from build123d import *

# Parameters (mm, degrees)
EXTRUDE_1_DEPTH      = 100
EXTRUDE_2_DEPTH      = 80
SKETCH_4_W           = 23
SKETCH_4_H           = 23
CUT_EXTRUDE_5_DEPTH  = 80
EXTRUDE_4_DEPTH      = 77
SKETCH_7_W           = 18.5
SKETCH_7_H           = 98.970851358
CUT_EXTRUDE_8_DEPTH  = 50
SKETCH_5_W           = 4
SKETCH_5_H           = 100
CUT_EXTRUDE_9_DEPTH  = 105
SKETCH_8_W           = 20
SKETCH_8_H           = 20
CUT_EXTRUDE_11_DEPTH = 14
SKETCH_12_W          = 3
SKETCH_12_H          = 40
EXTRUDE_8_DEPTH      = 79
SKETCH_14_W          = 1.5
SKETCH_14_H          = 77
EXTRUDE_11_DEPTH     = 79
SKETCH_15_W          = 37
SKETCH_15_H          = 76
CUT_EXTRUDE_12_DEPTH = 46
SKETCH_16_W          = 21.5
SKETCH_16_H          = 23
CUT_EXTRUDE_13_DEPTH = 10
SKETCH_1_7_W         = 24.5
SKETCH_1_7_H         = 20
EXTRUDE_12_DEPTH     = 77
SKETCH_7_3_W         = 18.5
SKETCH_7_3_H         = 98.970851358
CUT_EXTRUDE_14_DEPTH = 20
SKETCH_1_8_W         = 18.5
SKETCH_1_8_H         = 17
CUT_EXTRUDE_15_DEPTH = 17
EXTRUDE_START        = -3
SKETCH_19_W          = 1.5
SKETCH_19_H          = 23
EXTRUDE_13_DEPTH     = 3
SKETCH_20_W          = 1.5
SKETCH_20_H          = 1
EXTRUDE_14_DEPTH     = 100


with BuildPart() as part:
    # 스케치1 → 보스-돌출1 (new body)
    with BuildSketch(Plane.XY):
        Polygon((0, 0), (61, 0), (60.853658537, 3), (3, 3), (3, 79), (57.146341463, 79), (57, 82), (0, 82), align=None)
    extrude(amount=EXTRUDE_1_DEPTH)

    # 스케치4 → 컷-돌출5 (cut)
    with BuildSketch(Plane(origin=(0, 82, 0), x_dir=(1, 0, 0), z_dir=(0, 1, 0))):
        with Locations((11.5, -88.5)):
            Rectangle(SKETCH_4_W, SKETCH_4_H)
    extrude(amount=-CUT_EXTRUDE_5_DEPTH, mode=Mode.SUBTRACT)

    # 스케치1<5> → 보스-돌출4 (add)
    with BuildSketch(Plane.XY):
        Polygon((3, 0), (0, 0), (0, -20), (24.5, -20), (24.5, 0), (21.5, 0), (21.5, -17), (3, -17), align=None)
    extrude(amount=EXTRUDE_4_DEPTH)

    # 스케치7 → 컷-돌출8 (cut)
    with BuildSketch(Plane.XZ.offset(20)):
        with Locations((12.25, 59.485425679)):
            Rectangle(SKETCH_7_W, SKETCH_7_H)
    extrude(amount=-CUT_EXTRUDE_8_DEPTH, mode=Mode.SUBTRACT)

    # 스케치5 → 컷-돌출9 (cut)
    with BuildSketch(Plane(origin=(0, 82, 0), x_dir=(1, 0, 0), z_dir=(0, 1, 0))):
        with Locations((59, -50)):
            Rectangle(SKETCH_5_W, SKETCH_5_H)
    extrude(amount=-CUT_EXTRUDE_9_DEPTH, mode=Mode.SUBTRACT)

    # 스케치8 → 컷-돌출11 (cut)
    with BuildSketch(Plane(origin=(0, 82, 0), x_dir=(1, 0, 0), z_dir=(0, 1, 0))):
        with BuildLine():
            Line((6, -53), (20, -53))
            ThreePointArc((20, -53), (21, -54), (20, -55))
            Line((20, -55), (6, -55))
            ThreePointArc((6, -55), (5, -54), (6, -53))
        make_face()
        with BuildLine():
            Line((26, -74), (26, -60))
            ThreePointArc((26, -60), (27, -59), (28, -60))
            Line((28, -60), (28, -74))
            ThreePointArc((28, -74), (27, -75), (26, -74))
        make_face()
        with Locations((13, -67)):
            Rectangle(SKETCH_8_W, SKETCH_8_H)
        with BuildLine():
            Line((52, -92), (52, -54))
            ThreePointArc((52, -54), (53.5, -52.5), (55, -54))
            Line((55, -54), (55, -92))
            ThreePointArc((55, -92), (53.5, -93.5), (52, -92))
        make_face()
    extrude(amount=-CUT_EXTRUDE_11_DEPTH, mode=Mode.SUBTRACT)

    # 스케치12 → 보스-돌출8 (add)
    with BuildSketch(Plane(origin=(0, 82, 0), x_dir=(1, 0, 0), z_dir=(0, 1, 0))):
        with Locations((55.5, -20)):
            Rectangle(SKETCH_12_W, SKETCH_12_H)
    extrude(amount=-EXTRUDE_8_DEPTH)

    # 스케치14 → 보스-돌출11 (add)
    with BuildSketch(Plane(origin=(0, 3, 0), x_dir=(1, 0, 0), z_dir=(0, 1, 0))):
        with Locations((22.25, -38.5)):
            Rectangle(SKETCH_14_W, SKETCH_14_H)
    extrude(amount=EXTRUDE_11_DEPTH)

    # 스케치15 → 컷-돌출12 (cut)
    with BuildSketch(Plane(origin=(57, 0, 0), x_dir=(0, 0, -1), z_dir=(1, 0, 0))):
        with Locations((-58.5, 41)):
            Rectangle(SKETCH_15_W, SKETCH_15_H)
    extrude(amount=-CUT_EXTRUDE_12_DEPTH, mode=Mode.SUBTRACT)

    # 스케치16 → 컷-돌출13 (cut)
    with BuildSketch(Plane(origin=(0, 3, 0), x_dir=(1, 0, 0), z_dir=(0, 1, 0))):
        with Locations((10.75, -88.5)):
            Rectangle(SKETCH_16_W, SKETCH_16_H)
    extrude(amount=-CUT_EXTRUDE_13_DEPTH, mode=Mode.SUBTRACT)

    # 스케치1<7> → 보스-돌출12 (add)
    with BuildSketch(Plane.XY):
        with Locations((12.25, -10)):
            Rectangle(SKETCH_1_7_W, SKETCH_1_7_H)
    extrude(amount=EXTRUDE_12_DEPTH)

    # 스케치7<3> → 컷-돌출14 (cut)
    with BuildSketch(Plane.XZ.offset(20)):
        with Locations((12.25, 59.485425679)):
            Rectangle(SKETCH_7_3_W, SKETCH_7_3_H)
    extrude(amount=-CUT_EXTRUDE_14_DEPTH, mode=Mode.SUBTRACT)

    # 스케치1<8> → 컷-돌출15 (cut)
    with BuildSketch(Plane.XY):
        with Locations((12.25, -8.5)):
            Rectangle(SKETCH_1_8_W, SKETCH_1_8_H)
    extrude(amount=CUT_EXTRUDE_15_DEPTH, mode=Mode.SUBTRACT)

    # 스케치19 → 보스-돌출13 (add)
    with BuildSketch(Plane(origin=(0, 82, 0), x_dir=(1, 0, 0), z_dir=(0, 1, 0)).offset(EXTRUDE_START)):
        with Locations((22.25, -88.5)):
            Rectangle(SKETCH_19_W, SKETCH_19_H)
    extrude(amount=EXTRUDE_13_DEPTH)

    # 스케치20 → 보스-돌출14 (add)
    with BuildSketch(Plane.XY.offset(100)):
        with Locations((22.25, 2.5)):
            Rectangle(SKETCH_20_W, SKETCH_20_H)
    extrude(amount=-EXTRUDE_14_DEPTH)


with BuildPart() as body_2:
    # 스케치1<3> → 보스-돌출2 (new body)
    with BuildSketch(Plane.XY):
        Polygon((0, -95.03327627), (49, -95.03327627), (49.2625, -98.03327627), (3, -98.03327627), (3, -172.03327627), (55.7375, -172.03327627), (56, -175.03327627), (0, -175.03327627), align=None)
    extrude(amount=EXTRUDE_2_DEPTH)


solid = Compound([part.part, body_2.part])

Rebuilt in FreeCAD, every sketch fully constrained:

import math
import FreeCAD as App
import Part
import Sketcher

V = App.Vector


def add_polygon(sketch, points):
    """Adds a closed chain of lines whose ends are joined by coincident constraints."""
    first, n = sketch.GeometryCount, len(points)
    for a, b in zip(points, points[1:] + points[:1]):
        sketch.addGeometry(Part.LineSegment(App.Vector(*a, 0), App.Vector(*b, 0)), False)
    for i in range(n):
        sketch.addConstraint(Sketcher.Constraint("Coincident", first + i, 2, first + (i + 1) % n, 1))

doc = App.newDocument("Part")
body = doc.addObject("PartDesign::Body", "Body")

# Sketch on XY plane
sketch1 = body.newObject("Sketcher::SketchObject", "Sketch")
sketch1.AttachmentSupport = (doc.getObject("XY_Plane"), [""])
sketch1.MapMode = "FlatFace"
add_polygon(sketch1, [(0, 0), (61, 0), (60.9, 3), (3, 3), (3, 79), (57.1, 79), (57, 82), (0, 82)])  # lines 0-7
sketch1.addConstraint(Sketcher.Constraint("Horizontal", 0))
sketch1.addConstraint(Sketcher.Constraint("Horizontal", 2))
sketch1.addConstraint(Sketcher.Constraint("Vertical", 3))
sketch1.addConstraint(Sketcher.Constraint("Horizontal", 4))
sketch1.addConstraint(Sketcher.Constraint("Horizontal", 6))
sketch1.addConstraint(Sketcher.Constraint("Vertical", 7))
sketch1.addConstraint(Sketcher.Constraint("Coincident", 7, 2, -1, 1))
sketch1.addConstraint(Sketcher.Constraint("Parallel", 1, 5))
sketch1.addConstraint(Sketcher.Constraint("Equal", 1, 5))
sketch1.addConstraint(Sketcher.Constraint("DistanceX", 0, 1, 0, 2, 61.0))
sketch1.addConstraint(Sketcher.Constraint("DistanceX", 6, 2, 6, 1, 57.0))
sketch1.addConstraint(Sketcher.Constraint("DistanceY", 3, 1, 3, 2, 76.0))
sketch1.addConstraint(Sketcher.Constraint("DistanceY", 7, 2, 7, 1, 82.0))
sketch1.addConstraint(Sketcher.Constraint("DistanceX", -1, 1, 2, 2, 3.0))
sketch1.addConstraint(Sketcher.Constraint("DistanceX", 2, 2, 2, 1, 57.853659))
pad1 = body.newObject("PartDesign::Pad", "Pad")
pad1.Profile = sketch1
pad1.Length = 100

# Sketch on XZ plane
sketch2 = body.newObject("Sketcher::SketchObject", "Sketch001")
sketch2.AttachmentSupport = (doc.getObject("XZ_Plane"), [""])
sketch2.MapMode = "FlatFace"
sketch2.AttachmentOffset = App.Placement(V(0, 0, -82), App.Rotation())
add_polygon(sketch2, [(0, 77), (0, 100), (23, 100), (23, 77)])  # lines 0-3
sketch2.addConstraint(Sketcher.Constraint("Vertical", 0))
sketch2.addConstraint(Sketcher.Constraint("Horizontal", 1))
sketch2.addConstraint(Sketcher.Constraint("Vertical", 2))
sketch2.addConstraint(Sketcher.Constraint("Horizontal", 3))
sketch2.addConstraint(Sketcher.Constraint("PointOnObject", 0, 2, -2))
sketch2.addConstraint(Sketcher.Constraint("Equal", 3, 0))
sketch2.addConstraint(Sketcher.Constraint("DistanceX", 1, 1, 1, 2, 23.0))
sketch2.addConstraint(Sketcher.Constraint("DistanceY", -1, 1, 0, 2, 100.0))
pocket1 = body.newObject("PartDesign::Pocket", "Pocket")
pocket1.Profile = sketch2
pocket1.Length = 80
pocket1.Reversed = True

# Sketch on XY plane
sketch3 = body.newObject("Sketcher::SketchObject", "Sketch002")
sketch3.AttachmentSupport = (doc.getObject("XY_Plane"), [""])
sketch3.MapMode = "FlatFace"
add_polygon(sketch3, [(3, 0), (0, 0), (0, -20), (24.5, -20), (24.5, 0), (21.5, 0), (21.5, -17), (3, -17)])  # lines 0-7
sketch3.addConstraint(Sketcher.Constraint("Horizontal", 0))
sketch3.addConstraint(Sketcher.Constraint("Vertical", 1))
sketch3.addConstraint(Sketcher.Constraint("Horizontal", 2))
sketch3.addConstraint(Sketcher.Constraint("Vertical", 3))
sketch3.addConstraint(Sketcher.Constraint("Horizontal", 4))
sketch3.addConstraint(Sketcher.Constraint("Vertical", 5))
sketch3.addConstraint(Sketcher.Constraint("Horizontal", 6))
sketch3.addConstraint(Sketcher.Constraint("Vertical", 7))
sketch3.addConstraint(Sketcher.Constraint("Coincident", 0, 2, -1, 1))
sketch3.addConstraint(Sketcher.Constraint("PointOnObject", 3, 2, -1))
sketch3.addConstraint(Sketcher.Constraint("Equal", 0, 4))
sketch3.addConstraint(Sketcher.Constraint("DistanceX", 0, 2, 0, 1, 3.0))
sketch3.addConstraint(Sketcher.Constraint("DistanceY", 1, 2, 1, 1, 20.0))
sketch3.addConstraint(Sketcher.Constraint("DistanceY", 5, 2, 5, 1, 17.0))
sketch3.addConstraint(Sketcher.Constraint("DistanceX", 2, 1, 2, 2, 24.5))
pad2 = body.newObject("PartDesign::Pad", "Pad001")
pad2.Profile = sketch3
pad2.Length = 77

# Sketch on XZ plane
sketch4 = body.newObject("Sketcher::SketchObject", "Sketch003")
sketch4.AttachmentSupport = (doc.getObject("XZ_Plane"), [""])
sketch4.MapMode = "FlatFace"
sketch4.AttachmentOffset = App.Placement(V(0, 0, 20), App.Rotation())
add_polygon(sketch4, [(3, 109), (3, 10), (22, 10), (22, 109)])  # lines 0-3
sketch4.addConstraint(Sketcher.Constraint("Vertical", 0))
sketch4.addConstraint(Sketcher.Constraint("Horizontal", 1))
sketch4.addConstraint(Sketcher.Constraint("Vertical", 2))
sketch4.addConstraint(Sketcher.Constraint("Horizontal", 3))
sketch4.addConstraint(Sketcher.Constraint("DistanceX", 1, 1, 1, 2, 18.5))
sketch4.addConstraint(Sketcher.Constraint("DistanceX", -1, 1, 0, 2, 3.0))
sketch4.addConstraint(Sketcher.Constraint("DistanceY", -1, 1, 0, 2, 10.0))
sketch4.addConstraint(Sketcher.Constraint("DistanceY", 0, 2, 0, 1, 98.970851))
pocket2 = body.newObject("PartDesign::Pocket", "Pocket001")
pocket2.Profile = sketch4
pocket2.Length = 50

# Sketch on XZ plane
sketch5 = body.newObject("Sketcher::SketchObject", "Sketch004")
sketch5.AttachmentSupport = (doc.getObject("XZ_Plane"), [""])
sketch5.MapMode = "FlatFace"
sketch5.AttachmentOffset = App.Placement(V(0, 0, -82), App.Rotation())
add_polygon(sketch5, [(57, 0), (57, 100), (61, 100), (61, 0)])  # lines 0-3
sketch5.addConstraint(Sketcher.Constraint("Vertical", 0))
sketch5.addConstraint(Sketcher.Constraint("Horizontal", 1))
sketch5.addConstraint(Sketcher.Constraint("Vertical", 2))
sketch5.addConstraint(Sketcher.Constraint("Horizontal", 3))
sketch5.addConstraint(Sketcher.Constraint("PointOnObject", 2, 2, -1))
sketch5.addConstraint(Sketcher.Constraint("DistanceX", 1, 1, 1, 2, 4.0))
sketch5.addConstraint(Sketcher.Constraint("DistanceY", 0, 1, 0, 2, 100.0))
sketch5.addConstraint(Sketcher.Constraint("DistanceX", -1, 1, 0, 2, 57.0))
pocket3 = body.newObject("PartDesign::Pocket", "Pocket002")
pocket3.Profile = sketch5
pocket3.Length = 105
pocket3.Reversed = True

# Sketch on XZ plane
sketch6 = body.newObject("Sketcher::SketchObject", "Sketch005")
sketch6.AttachmentSupport = (doc.getObject("XZ_Plane"), [""])
sketch6.MapMode = "FlatFace"
sketch6.AttachmentOffset = App.Placement(V(0, 0, -82), App.Rotation())
sketch6.addGeometry(Part.LineSegment(V(20, 53, 0), V(6, 53, 0)), False)  # 0
sketch6.addGeometry(Part.ArcOfCircle(Part.Circle(V(6, 54, 0), V(0, 0, 1), 1), math.radians(90), math.radians(270)), False)  # 1
sketch6.addGeometry(Part.LineSegment(V(6, 55, 0), V(20, 55, 0)), False)  # 2
sketch6.addGeometry(Part.ArcOfCircle(Part.Circle(V(20, 54, 0), V(0, 0, 1), 1), math.radians(-90), math.radians(90)), False)  # 3
sketch6.addGeometry(Part.LineSegment(V(26, 60, 0), V(26, 74, 0)), False)  # 4
sketch6.addGeometry(Part.ArcOfCircle(Part.Circle(V(27, 74, 0), V(0, 0, 1), 1), math.radians(0), math.radians(180)), False)  # 5
sketch6.addGeometry(Part.LineSegment(V(28, 74, 0), V(28, 60, 0)), False)  # 6
sketch6.addGeometry(Part.ArcOfCircle(Part.Circle(V(27, 60, 0), V(0, 0, 1), 1), math.radians(180), math.radians(360)), False)  # 7
add_polygon(sketch6, [(3, 57), (3, 77), (23, 77), (23, 57)])  # lines 8-11
sketch6.addGeometry(Part.LineSegment(V(52, 54, 0), V(52, 92, 0)), False)  # 12
sketch6.addGeometry(Part.ArcOfCircle(Part.Circle(V(53.5, 92, 0), V(0, 0, 1), 1.5), math.radians(0), math.radians(180)), False)  # 13
sketch6.addGeometry(Part.LineSegment(V(55, 92, 0), V(55, 54, 0)), False)  # 14
sketch6.addGeometry(Part.ArcOfCircle(Part.Circle(V(53.5, 54, 0), V(0, 0, 1), 1.5), math.radians(180), math.radians(360)), False)  # 15
sketch6.addConstraint(Sketcher.Constraint("Tangent", 0, 2, 1, 2))
sketch6.addConstraint(Sketcher.Constraint("Tangent", 1, 1, 2, 1))
sketch6.addConstraint(Sketcher.Constraint("Tangent", 2, 2, 3, 2))
sketch6.addConstraint(Sketcher.Constraint("Tangent", 3, 1, 0, 1))
sketch6.addConstraint(Sketcher.Constraint("Tangent", 4, 2, 5, 2))
sketch6.addConstraint(Sketcher.Constraint("Tangent", 5, 1, 6, 1))
sketch6.addConstraint(Sketcher.Constraint("Tangent", 6, 2, 7, 2))
sketch6.addConstraint(Sketcher.Constraint("Tangent", 7, 1, 4, 1))
sketch6.addConstraint(Sketcher.Constraint("Tangent", 12, 2, 13, 2))
sketch6.addConstraint(Sketcher.Constraint("Tangent", 13, 1, 14, 1))
sketch6.addConstraint(Sketcher.Constraint("Tangent", 14, 2, 15, 2))
sketch6.addConstraint(Sketcher.Constraint("Tangent", 15, 1, 12, 1))
sketch6.addConstraint(Sketcher.Constraint("Horizontal", 0))
sketch6.addConstraint(Sketcher.Constraint("Horizontal", 2))
sketch6.addConstraint(Sketcher.Constraint("Vertical", 4))
sketch6.addConstraint(Sketcher.Constraint("Vertical", 6))
sketch6.addConstraint(Sketcher.Constraint("Vertical", 8))
sketch6.addConstraint(Sketcher.Constraint("Horizontal", 9))
sketch6.addConstraint(Sketcher.Constraint("Vertical", 10))
sketch6.addConstraint(Sketcher.Constraint("Horizontal", 11))
sketch6.addConstraint(Sketcher.Constraint("Vertical", 12))
sketch6.addConstraint(Sketcher.Constraint("Vertical", 14))
sketch6.addConstraint(Sketcher.Constraint("Equal", 3, 5))
sketch6.addConstraint(Sketcher.Constraint("Horizontal", 3, 3, 15, 3))
sketch6.addConstraint(Sketcher.Constraint("Equal", 2, 4))
sketch6.addConstraint(Sketcher.Constraint("Equal", 11, 8))
sketch6.addConstraint(Sketcher.Constraint("Radius", 1, 1.0))
sketch6.addConstraint(Sketcher.Constraint("Radius", 13, 1.5))
sketch6.addConstraint(Sketcher.Constraint("DistanceX", 0, 2, 0, 1, 14.0))
sketch6.addConstraint(Sketcher.Constraint("DistanceX", 9, 1, 9, 2, 20.0))
sketch6.addConstraint(Sketcher.Constraint("DistanceY", 12, 1, 12, 2, 38.0))
sketch6.addConstraint(Sketcher.Constraint("DistanceX", -1, 1, 1, 3, 6.0))
sketch6.addConstraint(Sketcher.Constraint("DistanceY", -1, 1, 1, 3, 54.0))
sketch6.addConstraint(Sketcher.Constraint("DistanceX", -1, 1, 5, 3, 27.0))
sketch6.addConstraint(Sketcher.Constraint("DistanceY", -1, 1, 5, 3, 74.0))
sketch6.addConstraint(Sketcher.Constraint("DistanceX", -1, 1, 8, 2, 3.0))
sketch6.addConstraint(Sketcher.Constraint("DistanceY", -1, 1, 8, 2, 77.0))
sketch6.addConstraint(Sketcher.Constraint("DistanceX", -1, 1, 12, 2, 52.0))
pocket4 = body.newObject("PartDesign::Pocket", "Pocket003")
pocket4.Profile = sketch6
pocket4.Length = 14
pocket4.Reversed = True

# Sketch on XZ plane
sketch7 = body.newObject("Sketcher::SketchObject", "Sketch006")
sketch7.AttachmentSupport = (doc.getObject("XZ_Plane"), [""])
sketch7.MapMode = "FlatFace"
sketch7.AttachmentOffset = App.Placement(V(0, 0, -82), App.Rotation())
add_polygon(sketch7, [(54, 0), (54, 40), (57, 40), (57, 0)])  # lines 0-3
sketch7.addConstraint(Sketcher.Constraint("Vertical", 0))
sketch7.addConstraint(Sketcher.Constraint("Horizontal", 1))
sketch7.addConstraint(Sketcher.Constraint("Vertical", 2))
sketch7.addConstraint(Sketcher.Constraint("Horizontal", 3))
sketch7.addConstraint(Sketcher.Constraint("PointOnObject", 2, 2, -1))
sketch7.addConstraint(Sketcher.Constraint("DistanceX", 1, 1, 1, 2, 3.0))
sketch7.addConstraint(Sketcher.Constraint("DistanceY", 0, 1, 0, 2, 40.0))
sketch7.addConstraint(Sketcher.Constraint("DistanceX", -1, 1, 0, 2, 54.0))
pad3 = body.newObject("PartDesign::Pad", "Pad002")
pad3.Profile = sketch7
pad3.Length = 79

# Sketch on XZ plane
sketch8 = body.newObject("Sketcher::SketchObject", "Sketch007")
sketch8.AttachmentSupport = (doc.getObject("XZ_Plane"), [""])
sketch8.MapMode = "FlatFace"
sketch8.AttachmentOffset = App.Placement(V(0, 0, -3), App.Rotation())
add_polygon(sketch8, [(21.5, 0), (21.5, 77), (23, 77), (23, 0)])  # lines 0-3
sketch8.addConstraint(Sketcher.Constraint("Vertical", 0))
sketch8.addConstraint(Sketcher.Constraint("Horizontal", 1))
sketch8.addConstraint(Sketcher.Constraint("Vertical", 2))
sketch8.addConstraint(Sketcher.Constraint("Horizontal", 3))
sketch8.addConstraint(Sketcher.Constraint("PointOnObject", 2, 2, -1))
sketch8.addConstraint(Sketcher.Constraint("DistanceY", 0, 1, 0, 2, 77.0))
sketch8.addConstraint(Sketcher.Constraint("DistanceX", 1, 1, 1, 2, 1.5))
sketch8.addConstraint(Sketcher.Constraint("DistanceX", -1, 1, 1, 2, 23.0))
pad4 = body.newObject("PartDesign::Pad", "Pad003")
pad4.Profile = sketch8
pad4.Length = 79
pad4.Reversed = True

# Sketch on YZ plane
sketch9 = body.newObject("Sketcher::SketchObject", "Sketch008")
sketch9.AttachmentSupport = (doc.getObject("YZ_Plane"), [""])
sketch9.MapMode = "FlatFace"
sketch9.AttachmentOffset = App.Placement(V(0, 0, 57), App.Rotation())
add_polygon(sketch9, [(79, 77), (3, 77), (3, 40), (79, 40)])  # lines 0-3
sketch9.addConstraint(Sketcher.Constraint("Horizontal", 0))
sketch9.addConstraint(Sketcher.Constraint("Vertical", 1))
sketch9.addConstraint(Sketcher.Constraint("Horizontal", 2))
sketch9.addConstraint(Sketcher.Constraint("Vertical", 3))
sketch9.addConstraint(Sketcher.Constraint("DistanceX", 0, 2, 0, 1, 76.0))
sketch9.addConstraint(Sketcher.Constraint("DistanceY", 1, 2, 1, 1, 37.0))
sketch9.addConstraint(Sketcher.Constraint("DistanceX", -1, 1, 0, 2, 3.0))
sketch9.addConstraint(Sketcher.Constraint("DistanceY", -1, 1, 0, 2, 77.0))
pocket5 = body.newObject("PartDesign::Pocket", "Pocket004")
pocket5.Profile = sketch9
pocket5.Length = 46

# Sketch on XZ plane
sketch10 = body.newObject("Sketcher::SketchObject", "Sketch009")
sketch10.AttachmentSupport = (doc.getObject("XZ_Plane"), [""])
sketch10.MapMode = "FlatFace"
sketch10.AttachmentOffset = App.Placement(V(0, 0, -3), App.Rotation())
add_polygon(sketch10, [(0, 77), (0, 100), (22, 100), (22, 77)])  # lines 0-3
sketch10.addConstraint(Sketcher.Constraint("Vertical", 0))
sketch10.addConstraint(Sketcher.Constraint("Horizontal", 1))
sketch10.addConstraint(Sketcher.Constraint("Vertical", 2))
sketch10.addConstraint(Sketcher.Constraint("Horizontal", 3))
sketch10.addConstraint(Sketcher.Constraint("PointOnObject", 0, 2, -2))
sketch10.addConstraint(Sketcher.Constraint("DistanceY", 0, 1, 0, 2, 23.0))
sketch10.addConstraint(Sketcher.Constraint("DistanceX", 1, 1, 1, 2, 21.5))
sketch10.addConstraint(Sketcher.Constraint("DistanceY", -1, 1, 0, 2, 100.0))
pocket6 = body.newObject("PartDesign::Pocket", "Pocket005")
pocket6.Profile = sketch10
pocket6.Length = 10
pocket6.Reversed = True

# Sketch on XY plane
sketch11 = body.newObject("Sketcher::SketchObject", "Sketch010")
sketch11.AttachmentSupport = (doc.getObject("XY_Plane"), [""])
sketch11.MapMode = "FlatFace"
add_polygon(sketch11, [(0, 0), (0, -20), (24, -20), (24, 0)])  # lines 0-3
sketch11.addConstraint(Sketcher.Constraint("Vertical", 0))
sketch11.addConstraint(Sketcher.Constraint("Horizontal", 1))
sketch11.addConstraint(Sketcher.Constraint("Vertical", 2))
sketch11.addConstraint(Sketcher.Constraint("Horizontal", 3))
sketch11.addConstraint(Sketcher.Constraint("Coincident", 3, 2, -1, 1))
sketch11.addConstraint(Sketcher.Constraint("DistanceY", 0, 2, 0, 1, 20.0))
sketch11.addConstraint(Sketcher.Constraint("DistanceX", 1, 1, 1, 2, 24.5))
pad5 = body.newObject("PartDesign::Pad", "Pad004")
pad5.Profile = sketch11
pad5.Length = 77

# Sketch on XZ plane
sketch12 = body.newObject("Sketcher::SketchObject", "Sketch011")
sketch12.AttachmentSupport = (doc.getObject("XZ_Plane"), [""])
sketch12.MapMode = "FlatFace"
sketch12.AttachmentOffset = App.Placement(V(0, 0, 20), App.Rotation())
add_polygon(sketch12, [(3, 109), (3, 10), (22, 10), (22, 109)])  # lines 0-3
sketch12.addConstraint(Sketcher.Constraint("Vertical", 0))
sketch12.addConstraint(Sketcher.Constraint("Horizontal", 1))
sketch12.addConstraint(Sketcher.Constraint("Vertical", 2))
sketch12.addConstraint(Sketcher.Constraint("Horizontal", 3))
sketch12.addConstraint(Sketcher.Constraint("DistanceX", 1, 1, 1, 2, 18.5))
sketch12.addConstraint(Sketcher.Constraint("DistanceX", -1, 1, 0, 2, 3.0))
sketch12.addConstraint(Sketcher.Constraint("DistanceY", -1, 1, 0, 2, 10.0))
sketch12.addConstraint(Sketcher.Constraint("DistanceY", 0, 2, 0, 1, 98.970851))
pocket7 = body.newObject("PartDesign::Pocket", "Pocket006")
pocket7.Profile = sketch12
pocket7.Length = 20

# Sketch on XY plane
sketch13 = body.newObject("Sketcher::SketchObject", "Sketch012")
sketch13.AttachmentSupport = (doc.getObject("XY_Plane"), [""])
sketch13.MapMode = "FlatFace"
add_polygon(sketch13, [(3, 0), (3, -17), (22, -17), (22, 0)])  # lines 0-3
sketch13.addConstraint(Sketcher.Constraint("Vertical", 0))
sketch13.addConstraint(Sketcher.Constraint("Horizontal", 1))
sketch13.addConstraint(Sketcher.Constraint("Vertical", 2))
sketch13.addConstraint(Sketcher.Constraint("Horizontal", 3))
sketch13.addConstraint(Sketcher.Constraint("PointOnObject", 2, 2, -1))
sketch13.addConstraint(Sketcher.Constraint("DistanceY", 0, 2, 0, 1, 17.0))
sketch13.addConstraint(Sketcher.Constraint("DistanceX", 1, 1, 1, 2, 18.5))
sketch13.addConstraint(Sketcher.Constraint("DistanceX", -1, 1, 0, 2, 3.0))
pocket8 = body.newObject("PartDesign::Pocket", "Pocket007")
pocket8.Profile = sketch13
pocket8.Length = 17
pocket8.Reversed = True

# Sketch on XZ plane
sketch14 = body.newObject("Sketcher::SketchObject", "Sketch013")
sketch14.AttachmentSupport = (doc.getObject("XZ_Plane"), [""])
sketch14.MapMode = "FlatFace"
sketch14.AttachmentOffset = App.Placement(V(0, 0, -79), App.Rotation())
add_polygon(sketch14, [(21.5, 77), (21.5, 100), (23, 100), (23, 77)])  # lines 0-3
sketch14.addConstraint(Sketcher.Constraint("Vertical", 0))
sketch14.addConstraint(Sketcher.Constraint("Horizontal", 1))
sketch14.addConstraint(Sketcher.Constraint("Vertical", 2))
sketch14.addConstraint(Sketcher.Constraint("Horizontal", 3))
sketch14.addConstraint(Sketcher.Constraint("DistanceY", 0, 1, 0, 2, 23.0))
sketch14.addConstraint(Sketcher.Constraint("DistanceX", 1, 1, 1, 2, 1.5))
sketch14.addConstraint(Sketcher.Constraint("DistanceY", -1, 1, 0, 2, 100.0))
sketch14.addConstraint(Sketcher.Constraint("DistanceX", -1, 1, 1, 2, 23.0))
pad6 = body.newObject("PartDesign::Pad", "Pad005")
pad6.Profile = sketch14
pad6.Length = 3
pad6.Reversed = True

# Sketch on XY plane
sketch15 = body.newObject("Sketcher::SketchObject", "Sketch014")
sketch15.AttachmentSupport = (doc.getObject("XY_Plane"), [""])
sketch15.MapMode = "FlatFace"
sketch15.AttachmentOffset = App.Placement(V(0, 0, 100), App.Rotation())
add_polygon(sketch15, [(21.5, 3), (21.5, 2), (23, 2), (23, 3)])  # lines 0-3
sketch15.addConstraint(Sketcher.Constraint("Vertical", 0))
sketch15.addConstraint(Sketcher.Constraint("Horizontal", 1))
sketch15.addConstraint(Sketcher.Constraint("Vertical", 2))
sketch15.addConstraint(Sketcher.Constraint("Horizontal", 3))
sketch15.addConstraint(Sketcher.Constraint("DistanceY", 0, 2, 0, 1, 1.0))
sketch15.addConstraint(Sketcher.Constraint("DistanceX", 1, 1, 1, 2, 1.5))
sketch15.addConstraint(Sketcher.Constraint("DistanceY", -1, 1, 0, 2, 2.0))
sketch15.addConstraint(Sketcher.Constraint("DistanceX", -1, 1, 1, 2, 23.0))
pad7 = body.newObject("PartDesign::Pad", "Pad006")
pad7.Profile = sketch15
pad7.Length = 100
pad7.Reversed = True
body2 = doc.addObject("PartDesign::Body", "Body001")

# Sketch on XY plane
sketch16 = body2.newObject("Sketcher::SketchObject", "Sketch015")
sketch16.AttachmentSupport = (doc.getObject("XY_Plane001"), [""])
sketch16.MapMode = "FlatFace"
add_polygon(sketch16, [(49, -95), (0, -95), (0, -175), (56, -175), (55.7, -172), (3, -172), (3, -98), (49.3, -98)])  # lines 0-7
sketch16.addConstraint(Sketcher.Constraint("Horizontal", 0))
sketch16.addConstraint(Sketcher.Constraint("Vertical", 1))
sketch16.addConstraint(Sketcher.Constraint("Horizontal", 2))
sketch16.addConstraint(Sketcher.Constraint("Horizontal", 4))
sketch16.addConstraint(Sketcher.Constraint("Vertical", 5))
sketch16.addConstraint(Sketcher.Constraint("Horizontal", 6))
sketch16.addConstraint(Sketcher.Constraint("PointOnObject", 0, 2, -2))
sketch16.addConstraint(Sketcher.Constraint("Parallel", 3, 7))
sketch16.addConstraint(Sketcher.Constraint("Equal", 3, 7))
sketch16.addConstraint(Sketcher.Constraint("DistanceX", 0, 2, 0, 1, 49.0))
sketch16.addConstraint(Sketcher.Constraint("DistanceX", 2, 1, 2, 2, 56.0))
sketch16.addConstraint(Sketcher.Constraint("DistanceY", 1, 2, 1, 1, 80.0))
sketch16.addConstraint(Sketcher.Constraint("DistanceY", 5, 1, 5, 2, 74.0))
sketch16.addConstraint(Sketcher.Constraint("DistanceX", -1, 1, 4, 2, 3.0))
sketch16.addConstraint(Sketcher.Constraint("DistanceX", 4, 2, 4, 1, 52.7375))
sketch16.addConstraint(Sketcher.Constraint("DistanceY", 0, 2, -1, 1, 95.033276))
pad8 = body2.newObject("PartDesign::Pad", "Pad007")
pad8.Profile = sketch16
pad8.Length = 80

doc.recompute()
